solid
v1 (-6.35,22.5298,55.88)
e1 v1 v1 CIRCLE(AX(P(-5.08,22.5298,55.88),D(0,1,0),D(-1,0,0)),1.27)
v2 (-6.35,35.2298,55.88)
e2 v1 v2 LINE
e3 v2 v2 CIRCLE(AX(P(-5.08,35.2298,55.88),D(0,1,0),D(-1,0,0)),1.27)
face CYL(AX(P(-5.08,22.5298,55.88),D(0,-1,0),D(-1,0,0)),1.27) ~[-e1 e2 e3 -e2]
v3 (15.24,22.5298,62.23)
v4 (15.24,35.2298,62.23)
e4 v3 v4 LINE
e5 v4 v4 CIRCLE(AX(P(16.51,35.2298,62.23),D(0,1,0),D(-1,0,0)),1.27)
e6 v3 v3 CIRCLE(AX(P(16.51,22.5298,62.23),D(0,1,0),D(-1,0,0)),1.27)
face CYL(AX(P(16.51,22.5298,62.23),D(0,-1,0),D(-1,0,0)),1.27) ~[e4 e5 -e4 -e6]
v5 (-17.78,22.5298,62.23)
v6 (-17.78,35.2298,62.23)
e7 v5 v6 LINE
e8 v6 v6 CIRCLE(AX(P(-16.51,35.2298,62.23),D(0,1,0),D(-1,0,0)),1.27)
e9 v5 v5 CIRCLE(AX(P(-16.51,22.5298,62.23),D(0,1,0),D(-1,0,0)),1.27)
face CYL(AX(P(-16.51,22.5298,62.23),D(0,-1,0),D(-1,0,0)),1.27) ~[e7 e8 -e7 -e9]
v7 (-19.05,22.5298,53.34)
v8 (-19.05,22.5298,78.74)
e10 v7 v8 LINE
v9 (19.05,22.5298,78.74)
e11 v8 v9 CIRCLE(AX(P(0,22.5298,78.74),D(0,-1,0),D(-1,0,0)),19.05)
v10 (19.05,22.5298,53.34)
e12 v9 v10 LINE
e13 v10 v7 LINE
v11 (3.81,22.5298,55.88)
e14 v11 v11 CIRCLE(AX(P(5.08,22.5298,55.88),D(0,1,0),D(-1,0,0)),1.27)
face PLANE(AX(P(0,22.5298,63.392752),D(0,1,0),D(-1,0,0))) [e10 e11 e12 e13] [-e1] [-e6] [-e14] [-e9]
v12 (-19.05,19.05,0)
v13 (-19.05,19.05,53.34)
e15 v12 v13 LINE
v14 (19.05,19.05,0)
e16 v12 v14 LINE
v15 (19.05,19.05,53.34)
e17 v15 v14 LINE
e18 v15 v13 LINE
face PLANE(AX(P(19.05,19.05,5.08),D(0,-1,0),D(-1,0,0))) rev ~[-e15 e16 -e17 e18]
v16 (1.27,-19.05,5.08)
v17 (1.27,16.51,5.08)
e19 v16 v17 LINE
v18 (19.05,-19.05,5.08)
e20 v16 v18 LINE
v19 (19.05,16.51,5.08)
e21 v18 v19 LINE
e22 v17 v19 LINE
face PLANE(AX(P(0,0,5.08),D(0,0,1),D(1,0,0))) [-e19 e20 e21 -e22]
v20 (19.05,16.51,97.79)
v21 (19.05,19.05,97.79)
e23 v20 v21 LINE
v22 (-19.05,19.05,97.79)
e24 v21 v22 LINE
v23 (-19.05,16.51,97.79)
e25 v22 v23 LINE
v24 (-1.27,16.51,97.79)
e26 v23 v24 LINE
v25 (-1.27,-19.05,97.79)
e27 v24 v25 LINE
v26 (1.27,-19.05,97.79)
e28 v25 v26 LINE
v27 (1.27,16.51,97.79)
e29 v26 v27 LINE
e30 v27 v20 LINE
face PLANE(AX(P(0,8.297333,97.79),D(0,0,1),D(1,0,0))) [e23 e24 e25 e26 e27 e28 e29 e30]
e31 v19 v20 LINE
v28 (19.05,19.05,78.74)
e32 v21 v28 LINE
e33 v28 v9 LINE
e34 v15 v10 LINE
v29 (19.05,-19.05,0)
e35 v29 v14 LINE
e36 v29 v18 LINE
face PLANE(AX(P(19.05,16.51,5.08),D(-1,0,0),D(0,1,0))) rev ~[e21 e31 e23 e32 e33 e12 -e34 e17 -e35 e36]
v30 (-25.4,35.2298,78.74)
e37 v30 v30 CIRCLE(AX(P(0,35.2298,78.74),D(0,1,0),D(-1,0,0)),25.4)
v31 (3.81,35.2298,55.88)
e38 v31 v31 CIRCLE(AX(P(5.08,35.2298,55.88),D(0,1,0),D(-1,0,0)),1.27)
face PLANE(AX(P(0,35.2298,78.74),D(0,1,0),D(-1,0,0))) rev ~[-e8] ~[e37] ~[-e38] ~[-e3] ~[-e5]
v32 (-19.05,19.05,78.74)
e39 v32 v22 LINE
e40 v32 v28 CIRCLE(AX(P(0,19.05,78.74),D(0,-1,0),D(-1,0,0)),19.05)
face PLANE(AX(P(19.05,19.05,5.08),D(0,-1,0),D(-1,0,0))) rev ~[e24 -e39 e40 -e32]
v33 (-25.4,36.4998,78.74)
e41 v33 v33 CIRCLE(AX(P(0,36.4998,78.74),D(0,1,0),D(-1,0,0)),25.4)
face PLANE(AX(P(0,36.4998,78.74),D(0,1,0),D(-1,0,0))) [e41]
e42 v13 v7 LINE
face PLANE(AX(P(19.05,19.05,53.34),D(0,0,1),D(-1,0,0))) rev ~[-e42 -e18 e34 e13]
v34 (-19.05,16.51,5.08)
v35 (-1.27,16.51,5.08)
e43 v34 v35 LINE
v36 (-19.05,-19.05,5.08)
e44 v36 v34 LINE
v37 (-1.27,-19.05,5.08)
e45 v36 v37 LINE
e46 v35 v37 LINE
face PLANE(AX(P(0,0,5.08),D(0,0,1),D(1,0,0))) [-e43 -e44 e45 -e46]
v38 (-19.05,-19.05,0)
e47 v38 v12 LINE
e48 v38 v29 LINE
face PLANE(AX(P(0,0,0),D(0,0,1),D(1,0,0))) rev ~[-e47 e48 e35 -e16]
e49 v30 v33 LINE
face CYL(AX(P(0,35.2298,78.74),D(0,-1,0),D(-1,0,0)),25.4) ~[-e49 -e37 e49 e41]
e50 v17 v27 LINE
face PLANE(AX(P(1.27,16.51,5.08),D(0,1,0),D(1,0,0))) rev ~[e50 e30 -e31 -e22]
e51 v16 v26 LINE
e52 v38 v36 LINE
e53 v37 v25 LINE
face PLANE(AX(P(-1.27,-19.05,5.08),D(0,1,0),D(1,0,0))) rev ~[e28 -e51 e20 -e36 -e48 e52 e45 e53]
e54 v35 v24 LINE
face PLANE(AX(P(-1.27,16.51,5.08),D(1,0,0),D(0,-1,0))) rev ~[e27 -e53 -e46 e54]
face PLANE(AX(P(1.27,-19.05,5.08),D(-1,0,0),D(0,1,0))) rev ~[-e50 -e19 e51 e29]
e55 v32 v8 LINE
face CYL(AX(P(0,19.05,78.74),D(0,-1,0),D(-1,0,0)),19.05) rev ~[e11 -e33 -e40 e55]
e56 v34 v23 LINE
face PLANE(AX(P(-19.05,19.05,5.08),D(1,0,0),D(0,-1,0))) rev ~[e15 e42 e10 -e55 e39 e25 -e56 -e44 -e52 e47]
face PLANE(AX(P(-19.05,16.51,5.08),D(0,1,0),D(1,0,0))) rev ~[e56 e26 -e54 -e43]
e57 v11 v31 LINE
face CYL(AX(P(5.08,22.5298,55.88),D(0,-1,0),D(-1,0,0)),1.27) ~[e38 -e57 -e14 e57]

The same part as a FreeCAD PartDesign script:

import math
import FreeCAD as App
import Part
import Sketcher
Q = App.Units.Quantity


def add_polygon(sketch, points):
    """Adds a closed chain of lines whose ends are joined by coincident constraints."""
    first, n = sketch.GeometryCount, len(points)
    for a, b in zip(points, points[1:] + points[:1]):
        sketch.addGeometry(Part.LineSegment(App.Vector(*a, 0), App.Vector(*b, 0)), False)
    for i in range(n):
        sketch.addConstraint(Sketcher.Constraint("Coincident", first + i, 2, first + (i + 1) % n, 1))

doc = App.newDocument("Part")
body = doc.addObject("PartDesign::Body", "Body")

# Sketch on XY plane
sketch1 = body.newObject("Sketcher::SketchObject", "Sketch")
sketch1.AttachmentSupport = (doc.getObject("XY_Plane"), [""])
sketch1.MapMode = "FlatFace"
add_polygon(sketch1, [(-19, 19), (-19, -19), (19, -19), (19, 19)])  # lines 0-3
sketch1.addConstraint([
    Sketcher.Constraint("Vertical", 0),
    Sketcher.Constraint("Horizontal", 1),
    Sketcher.Constraint("Vertical", 2),
    Sketcher.Constraint("Horizontal", 3),
    Sketcher.Constraint("Symmetric", 0, 2, 2, 2, -1, 1),
    Sketcher.Constraint("Equal", 3, 0),
    Sketcher.Constraint("DistanceX", 1, 1, 1, 2, Q("1.5 in")),
])
pad1 = body.newObject("PartDesign::Pad", "Pad")
pad1.Profile = sketch1
pad1.Length = Q("0.2 in")

# Sketch on XY plane
sketch2 = body.newObject("Sketcher::SketchObject", "Sketch001")
sketch2.AttachmentSupport = (doc.getObject("XY_Plane"), [""])
sketch2.MapMode = "FlatFace"
sketch2.AttachmentOffset = App.Placement(App.Vector(0, 0, 0.2 * 25.4), App.Rotation())
add_polygon(sketch2, [(19.1, 19.1), (-19.1, 19.1), (-19.1, 16.5), (-1.3, 16.5), (-1.3, -19.1), (1.3, -19.1), (1.3, 16.5), (19.1, 16.5)])  # lines 0-7
sketch2.addConstraint([
    Sketcher.Constraint("Horizontal", 0),
    Sketcher.Constraint("Vertical", 1),
    Sketcher.Constraint("Horizontal", 2),
    Sketcher.Constraint("Vertical", 3),
    Sketcher.Constraint("Horizontal", 4),
    Sketcher.Constraint("Vertical", 5),
    Sketcher.Constraint("Horizontal", 6),
    Sketcher.Constraint("Vertical", 7),
    Sketcher.Constraint("Symmetric", 2, 2, 5, 2, -2),
    Sketcher.Constraint("Equal", 2, 6),
    Sketcher.Constraint("Equal", 4, 1),
    Sketcher.Constraint("DistanceX", 0, 2, 0, 1, Q("1.5 in")),
    Sketcher.Constraint("DistanceX", 2, 1, 2, 2, Q("0.7 in")),
    Sketcher.Constraint("DistanceY", 3, 2, 3, 1, Q("1.4 in")),
    Sketcher.Constraint("DistanceY", -1, 1, 0, 2, Q("0.75 in")),
])
pad2 = body.newObject("PartDesign::Pad", "Pad001")
pad2.Profile = sketch2
pad2.Length = Q("3.65 in")

# Sketch on XZ plane
sketch3 = body.newObject("Sketcher::SketchObject", "Sketch002")
sketch3.AttachmentSupport = (doc.getObject("XZ_Plane"), [""])
sketch3.MapMode = "FlatFace"
sketch3.AttachmentOffset = App.Placement(App.Vector(0, 0, -0.75 * 25.4), App.Rotation())
sketch3.addGeometry([
    Part.ArcOfCircle(Part.Circle(App.Vector(0, 79, 0), App.Vector(0, 0, 1), 19), math.radians(180), math.radians(360)),
    Part.LineSegment(App.Vector(19, 79, 0), App.Vector(19, 53, 0)),
    Part.LineSegment(App.Vector(19, 53, 0), App.Vector(-19, 53, 0)),
    Part.LineSegment(App.Vector(-19, 53, 0), App.Vector(-19, 79, 0)),
], False)
sketch3.addConstraint([
    Sketcher.Constraint("Tangent", 0, 2, 1, 1),
    Sketcher.Constraint("Coincident", 1, 2, 2, 1),
    Sketcher.Constraint("Coincident", 2, 2, 3, 1),
    Sketcher.Constraint("Tangent", 3, 2, 0, 1),
    Sketcher.Constraint("Vertical", 1),
    Sketcher.Constraint("Horizontal", 2),
    Sketcher.Constraint("Vertical", 3),
    Sketcher.Constraint("PointOnObject", 0, 3, -2),
    Sketcher.Constraint("DistanceY", 1, 2, 1, 1, Q("1 in")),
    Sketcher.Constraint("Radius", 0, Q("0.75 in")),
    Sketcher.Constraint("DistanceY", -1, 1, 0, 3, Q("3.1 in")),
])
pad3 = body.newObject("PartDesign::Pad", "Pad002")
pad3.Profile = sketch3
pad3.Length = Q("0.137 in")
pad3.Reversed = True
body2 = doc.addObject("PartDesign::Body", "Body001")

# Sketch on XZ plane
sketch4 = body2.newObject("Sketcher::SketchObject", "Sketch003")
sketch4.AttachmentSupport = (doc.getObject("XZ_Plane001"), [""])
sketch4.MapMode = "FlatFace"
sketch4.AttachmentOffset = App.Placement(App.Vector(0, 0, -1.387 * 25.4), App.Rotation())
sketch4.addGeometry(Part.Circle(App.Vector(0, 79, 0), App.Vector(0, 0, 1), 25), False)
sketch4.addConstraint([
    Sketcher.Constraint("PointOnObject", 0, 3, -2),
    Sketcher.Constraint("Diameter", 0, Q("2 in")),
    Sketcher.Constraint("DistanceY", -1, 1, 0, 3, Q("3.1 in")),
])
pad4 = body2.newObject("PartDesign::Pad", "Pad003")
pad4.Profile = sketch4
pad4.Length = Q("0.05 in")
pad4.Reversed = True
body.AllowCompound = True
doc.recompute()

boolean = body.newObject("PartDesign::Boolean", "Boolean")
boolean.Type = "Fuse"
boolean.addObjects([body2])

# Sketch on XZ plane
sketch5 = body.newObject("Sketcher::SketchObject", "Sketch004")
sketch5.AttachmentSupport = (doc.getObject("XZ_Plane"), [""])
sketch5.MapMode = "FlatFace"
sketch5.AttachmentOffset = App.Placement(App.Vector(0, 0, -0.887 * 25.4), App.Rotation())
sketch5.addGeometry([
    Part.Circle(App.Vector(5.1, 55.9, 0), App.Vector(0, 0, 1), 1.3),
    Part.Circle(App.Vector(-5.1, 55.9, 0), App.Vector(0, 0, 1), 1.3),
    Part.Circle(App.Vector(16.5, 62.2, 0), App.Vector(0, 0, 1), 1.3),
    Part.Circle(App.Vector(-16.5, 62.2, 0), App.Vector(0, 0, 1), 1.3),
], False)
sketch5.addConstraint([
    Sketcher.Constraint("Equal", 0, 1),
    Sketcher.Constraint("Equal", 1, 2),
    Sketcher.Constraint("Equal", 2, 3),
    Sketcher.Constraint("Symmetric", 0, 3, 1, 3, -2),
    Sketcher.Constraint("Symmetric", 2, 3, 3, 3, -2),
    Sketcher.Constraint("Diameter", 0, Q("0.1 in")),
    Sketcher.Constraint("DistanceX", -1, 1, 0, 3, Q("0.2 in")),
    Sketcher.Constraint("DistanceY", -1, 1, 0, 3, Q("2.2 in")),
    Sketcher.Constraint("DistanceX", 3, 3, 2, 3, Q("1.3 in")),
    Sketcher.Constraint("DistanceY", -1, 1, 2, 3, Q("2.45 in")),
])
pad5 = body.newObject("PartDesign::Pad", "Pad004")
pad5.Profile = sketch5
pad5.Type = "UpToLast"
pad5.Reversed = True

doc.recompute()
